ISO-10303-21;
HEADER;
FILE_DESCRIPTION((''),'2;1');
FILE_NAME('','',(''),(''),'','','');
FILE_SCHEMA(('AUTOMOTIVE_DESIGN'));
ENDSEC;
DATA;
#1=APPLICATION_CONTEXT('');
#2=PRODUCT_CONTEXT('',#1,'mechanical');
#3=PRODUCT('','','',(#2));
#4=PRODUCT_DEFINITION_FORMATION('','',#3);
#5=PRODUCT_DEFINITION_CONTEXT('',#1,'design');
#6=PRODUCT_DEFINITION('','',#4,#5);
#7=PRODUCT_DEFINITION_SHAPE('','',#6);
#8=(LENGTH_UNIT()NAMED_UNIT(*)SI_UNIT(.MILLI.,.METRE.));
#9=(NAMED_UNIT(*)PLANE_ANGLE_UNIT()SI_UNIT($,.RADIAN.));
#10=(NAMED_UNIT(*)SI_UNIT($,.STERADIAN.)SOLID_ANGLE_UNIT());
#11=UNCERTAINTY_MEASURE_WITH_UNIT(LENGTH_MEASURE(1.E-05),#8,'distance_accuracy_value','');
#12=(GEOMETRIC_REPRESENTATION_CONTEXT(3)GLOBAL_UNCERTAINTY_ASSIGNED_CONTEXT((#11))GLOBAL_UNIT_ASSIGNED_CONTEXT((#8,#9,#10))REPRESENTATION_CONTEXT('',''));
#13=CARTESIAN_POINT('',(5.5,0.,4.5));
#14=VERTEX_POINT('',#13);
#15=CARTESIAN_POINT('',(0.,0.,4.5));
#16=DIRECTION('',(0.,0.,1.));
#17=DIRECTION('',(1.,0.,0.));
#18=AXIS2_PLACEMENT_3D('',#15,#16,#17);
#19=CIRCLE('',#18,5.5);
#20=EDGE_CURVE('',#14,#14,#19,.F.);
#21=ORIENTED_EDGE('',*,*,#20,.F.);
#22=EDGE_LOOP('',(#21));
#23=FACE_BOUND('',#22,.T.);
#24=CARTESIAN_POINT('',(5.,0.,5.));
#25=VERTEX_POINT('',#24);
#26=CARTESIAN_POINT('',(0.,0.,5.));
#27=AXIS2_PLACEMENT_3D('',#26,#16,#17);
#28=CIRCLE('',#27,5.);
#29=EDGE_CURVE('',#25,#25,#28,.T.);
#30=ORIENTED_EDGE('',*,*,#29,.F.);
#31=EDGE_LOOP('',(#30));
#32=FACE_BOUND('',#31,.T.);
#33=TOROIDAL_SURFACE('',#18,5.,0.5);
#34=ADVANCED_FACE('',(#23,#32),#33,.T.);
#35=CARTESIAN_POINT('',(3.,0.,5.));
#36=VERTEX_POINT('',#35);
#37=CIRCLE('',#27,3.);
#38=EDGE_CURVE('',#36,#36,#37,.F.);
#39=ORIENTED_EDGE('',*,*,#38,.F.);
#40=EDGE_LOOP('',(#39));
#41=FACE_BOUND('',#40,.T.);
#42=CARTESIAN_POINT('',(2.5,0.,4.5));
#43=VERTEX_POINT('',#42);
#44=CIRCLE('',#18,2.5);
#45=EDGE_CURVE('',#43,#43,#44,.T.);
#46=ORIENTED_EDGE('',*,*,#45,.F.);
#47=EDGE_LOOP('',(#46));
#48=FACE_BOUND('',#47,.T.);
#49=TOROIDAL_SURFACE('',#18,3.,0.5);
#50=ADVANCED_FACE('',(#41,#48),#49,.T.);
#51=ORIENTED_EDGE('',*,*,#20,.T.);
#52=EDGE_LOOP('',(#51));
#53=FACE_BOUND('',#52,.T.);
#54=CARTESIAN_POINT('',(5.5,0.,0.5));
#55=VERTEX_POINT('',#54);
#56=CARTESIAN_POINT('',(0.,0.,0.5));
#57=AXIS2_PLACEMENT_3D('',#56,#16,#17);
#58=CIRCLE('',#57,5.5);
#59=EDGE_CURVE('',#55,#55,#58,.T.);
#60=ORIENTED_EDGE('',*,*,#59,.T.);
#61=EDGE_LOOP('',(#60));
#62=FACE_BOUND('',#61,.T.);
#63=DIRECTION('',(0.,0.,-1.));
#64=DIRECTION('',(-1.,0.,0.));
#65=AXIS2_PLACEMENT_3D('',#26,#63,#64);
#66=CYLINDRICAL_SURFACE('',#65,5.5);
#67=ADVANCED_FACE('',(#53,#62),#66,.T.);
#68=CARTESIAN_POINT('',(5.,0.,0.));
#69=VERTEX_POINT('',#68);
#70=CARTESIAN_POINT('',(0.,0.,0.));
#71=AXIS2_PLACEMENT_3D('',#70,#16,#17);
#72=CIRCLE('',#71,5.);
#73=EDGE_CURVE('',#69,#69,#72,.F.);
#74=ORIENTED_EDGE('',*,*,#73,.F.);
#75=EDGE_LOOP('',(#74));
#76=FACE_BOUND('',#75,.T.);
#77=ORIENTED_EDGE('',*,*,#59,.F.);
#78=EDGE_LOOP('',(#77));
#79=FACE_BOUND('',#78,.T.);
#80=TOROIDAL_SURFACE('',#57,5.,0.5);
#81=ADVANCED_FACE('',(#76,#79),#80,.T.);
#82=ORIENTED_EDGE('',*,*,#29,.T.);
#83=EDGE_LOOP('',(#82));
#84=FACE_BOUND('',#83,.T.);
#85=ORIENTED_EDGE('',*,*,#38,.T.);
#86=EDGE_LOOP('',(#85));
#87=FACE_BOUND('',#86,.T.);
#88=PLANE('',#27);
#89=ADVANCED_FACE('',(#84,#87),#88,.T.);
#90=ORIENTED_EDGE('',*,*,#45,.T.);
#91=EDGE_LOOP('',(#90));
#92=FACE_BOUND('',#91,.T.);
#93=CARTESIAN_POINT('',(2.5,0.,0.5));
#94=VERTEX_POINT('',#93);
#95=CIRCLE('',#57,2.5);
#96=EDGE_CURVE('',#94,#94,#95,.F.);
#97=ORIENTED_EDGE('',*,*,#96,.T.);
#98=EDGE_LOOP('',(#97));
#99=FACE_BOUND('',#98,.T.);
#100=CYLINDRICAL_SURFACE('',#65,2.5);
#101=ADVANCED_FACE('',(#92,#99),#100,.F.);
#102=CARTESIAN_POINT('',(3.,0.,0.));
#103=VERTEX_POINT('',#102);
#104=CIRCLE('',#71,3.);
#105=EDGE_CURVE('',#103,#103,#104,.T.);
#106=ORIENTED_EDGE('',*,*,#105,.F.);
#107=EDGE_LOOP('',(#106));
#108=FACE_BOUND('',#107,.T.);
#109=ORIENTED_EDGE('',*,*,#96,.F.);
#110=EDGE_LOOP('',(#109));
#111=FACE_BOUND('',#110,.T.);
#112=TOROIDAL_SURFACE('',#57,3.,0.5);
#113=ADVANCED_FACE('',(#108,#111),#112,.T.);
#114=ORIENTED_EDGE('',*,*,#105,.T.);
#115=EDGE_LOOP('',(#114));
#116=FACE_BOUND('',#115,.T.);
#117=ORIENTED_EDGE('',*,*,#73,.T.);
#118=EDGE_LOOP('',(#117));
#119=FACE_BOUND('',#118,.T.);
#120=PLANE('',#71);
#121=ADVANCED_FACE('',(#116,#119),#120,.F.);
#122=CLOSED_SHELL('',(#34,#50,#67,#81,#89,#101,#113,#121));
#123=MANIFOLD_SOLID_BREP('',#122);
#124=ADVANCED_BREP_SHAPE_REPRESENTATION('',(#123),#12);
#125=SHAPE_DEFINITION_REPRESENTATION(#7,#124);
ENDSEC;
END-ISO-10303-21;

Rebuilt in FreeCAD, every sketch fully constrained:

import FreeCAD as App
import Part
import Sketcher
from FreeCAD import Vector
Q = App.Units.Quantity


def edges_at(feature, points):
    """Names of the edges that pass closest to the given points."""
    edges = feature.Shape.Edges
    near = lambda p: min(range(len(edges)), key=lambda i: edges[i].distToShape(Part.Vertex(*p))[0])
    return sorted({f"Edge{near(p) + 1}" for p in points})

doc = App.newDocument("Part")
body = doc.addObject("PartDesign::Body", "Body")

sketch1 = body.newObject("Sketcher::SketchObject", "Sketch")
sketch1.AttachmentSupport = (doc.getObject("XY_Plane"), [""])
sketch1.MapMode = "FlatFace"
sketch1.addGeometry([
    Part.Circle(Vector(0, 0, 0), Vector(0, 0, 1), 5.5),
    Part.Circle(Vector(0, 0, 0), Vector(0, 0, 1), 2.5),
], False)
sketch1.addConstraint([
    Sketcher.Constraint("Coincident", 0, 3, -1, 1),
    Sketcher.Constraint("Coincident", 1, 3, -1, 1),
    Sketcher.Constraint("Diameter", 0, Q("11 mm")),
    Sketcher.Constraint("Diameter", 1, Q("5 mm")),
])
pad1 = body.newObject("PartDesign::Pad", "Pad")
pad1.Profile = sketch1
pad1.Length = 5
doc.recompute()

fillet = body.newObject("PartDesign::Fillet", "Fillet")
fillet.Base = (pad1, edges_at(pad1, [
    (-5.5, 0, 0),
    (-5.5, 0, 5),
    (-2.5, 0, 0),
    (-2.5, 0, 5),
]))
fillet.Radius = 0.5

doc.recompute()
